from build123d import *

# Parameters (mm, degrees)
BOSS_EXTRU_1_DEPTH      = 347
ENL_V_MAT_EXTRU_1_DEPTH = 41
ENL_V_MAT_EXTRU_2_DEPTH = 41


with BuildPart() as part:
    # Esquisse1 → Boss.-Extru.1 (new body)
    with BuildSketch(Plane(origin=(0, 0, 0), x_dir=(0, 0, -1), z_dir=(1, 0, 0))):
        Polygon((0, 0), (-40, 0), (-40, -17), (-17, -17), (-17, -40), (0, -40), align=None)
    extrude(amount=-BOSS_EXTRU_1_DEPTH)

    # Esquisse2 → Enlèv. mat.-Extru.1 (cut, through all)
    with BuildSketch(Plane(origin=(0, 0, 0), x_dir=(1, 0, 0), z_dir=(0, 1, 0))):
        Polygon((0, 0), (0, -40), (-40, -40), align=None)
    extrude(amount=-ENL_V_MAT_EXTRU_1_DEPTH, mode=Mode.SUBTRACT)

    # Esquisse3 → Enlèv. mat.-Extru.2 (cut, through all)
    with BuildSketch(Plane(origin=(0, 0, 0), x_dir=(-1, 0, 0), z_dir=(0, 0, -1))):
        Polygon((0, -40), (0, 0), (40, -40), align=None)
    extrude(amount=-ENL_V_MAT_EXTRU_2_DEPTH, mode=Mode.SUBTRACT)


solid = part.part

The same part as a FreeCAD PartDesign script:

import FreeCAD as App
import Part
import Sketcher

doc = App.newDocument("Part")
body = doc.addObject("PartDesign::Body", "Body")

# Sketch on YZ plane
sketch1 = body.newObject("Sketcher::SketchObject", "Sketch")
sketch1.AttachmentSupport = (doc.getObject("YZ_Plane"), [""])
sketch1.MapMode = "FlatFace"
sketch1.addGeometry([
    Part.LineSegment(App.Vector(0, 0, 0), App.Vector(0, 40, 0)),  # 0
    Part.LineSegment(App.Vector(0, 40, 0), App.Vector(-17, 40, 0)),  # 1
    Part.LineSegment(App.Vector(-17, 40, 0), App.Vector(-17, 17, 0)),  # 2
    Part.LineSegment(App.Vector(-17, 17, 0), App.Vector(-40, 17, 0)),  # 3
    Part.LineSegment(App.Vector(-40, 17, 0), App.Vector(-40, 0, 0)),  # 4
    Part.LineSegment(App.Vector(-40, 0, 0), App.Vector(0, 0, 0)),  # 5
], False)
sketch1.addConstraint([
    Sketcher.Constraint("Coincident", 0, 2, 1, 1),
    Sketcher.Constraint("Coincident", 1, 2, 2, 1),
    Sketcher.Constraint("Coincident", 2, 2, 3, 1),
    Sketcher.Constraint("Coincident", 3, 2, 4, 1),
    Sketcher.Constraint("Coincident", 4, 2, 5, 1),
    Sketcher.Constraint("Coincident", 5, 2, 0, 1),
    Sketcher.Constraint("Vertical", 0),
    Sketcher.Constraint("Horizontal", 1),
    Sketcher.Constraint("Vertical", 2),
    Sketcher.Constraint("Horizontal", 3),
    Sketcher.Constraint("Vertical", 4),
    Sketcher.Constraint("Horizontal", 5),
    Sketcher.Constraint("Coincident", 5, 2, -1, 1),
    Sketcher.Constraint("Equal", 5, 0),
    Sketcher.Constraint("Equal", 3, 2),
    Sketcher.Constraint("DistanceX", 1, 2, 1, 1, 17.0),
    Sketcher.Constraint("DistanceX", 3, 2, 3, 1, 23.0),
])
pad1 = body.newObject("PartDesign::Pad", "Pad")
pad1.Profile = sketch1
pad1.Length = 347
pad1.Reversed = True

# Sketch on XZ plane
sketch2 = body.newObject("Sketcher::SketchObject", "Sketch001")
sketch2.AttachmentSupport = (doc.getObject("XZ_Plane"), [""])
sketch2.MapMode = "FlatFace"
sketch2.addGeometry([
    Part.LineSegment(App.Vector(0, 40, 0), App.Vector(0, 0, 0)),
    Part.LineSegment(App.Vector(0, 0, 0), App.Vector(-40, 40, 0)),
    Part.LineSegment(App.Vector(-40, 40, 0), App.Vector(0, 40, 0)),
], False)
sketch2.addConstraint([
    Sketcher.Constraint("Coincident", 0, 2, 1, 1),
    Sketcher.Constraint("Coincident", 1, 2, 2, 1),
    Sketcher.Constraint("Coincident", 2, 2, 0, 1),
    Sketcher.Constraint("Vertical", 0),
    Sketcher.Constraint("Horizontal", 2),
    Sketcher.Constraint("Coincident", 0, 2, -1, 1),
    Sketcher.Constraint("Equal", 2, 0),
    Sketcher.Constraint("DistanceX", 2, 1, 2, 2, 40.0),
])
pocket1 = body.newObject("PartDesign::Pocket", "Pocket")
pocket1.Profile = sketch2
pocket1.Type = "ThroughAll"
pocket1.Reversed = True

# Sketch on XY plane
sketch3 = body.newObject("Sketcher::SketchObject", "Sketch002")
sketch3.AttachmentSupport = (doc.getObject("XY_Plane"), [""])
sketch3.MapMode = "FlatFace"
sketch3.addGeometry([
    Part.LineSegment(App.Vector(0, 0, 0), App.Vector(0, -40, 0)),
    Part.LineSegment(App.Vector(0, -40, 0), App.Vector(-40, -40, 0)),
    Part.LineSegment(App.Vector(-40, -40, 0), App.Vector(0, 0, 0)),
], False)
sketch3.addConstraint([
    Sketcher.Constraint("Coincident", 0, 2, 1, 1),
    Sketcher.Constraint("Coincident", 1, 2, 2, 1),
    Sketcher.Constraint("Coincident", 2, 2, 0, 1),
    Sketcher.Constraint("Vertical", 0),
    Sketcher.Constraint("Horizontal", 1),
    Sketcher.Constraint("Coincident", 2, 2, -1, 1),
    Sketcher.Constraint("Equal", 1, 0),
    Sketcher.Constraint("DistanceX", 1, 2, 1, 1, 40.0),
])
pocket2 = body.newObject("PartDesign::Pocket", "Pocket001")
pocket2.Profile = sketch3
pocket2.Type = "ThroughAll"
pocket2.Reversed = True

doc.recompute()
